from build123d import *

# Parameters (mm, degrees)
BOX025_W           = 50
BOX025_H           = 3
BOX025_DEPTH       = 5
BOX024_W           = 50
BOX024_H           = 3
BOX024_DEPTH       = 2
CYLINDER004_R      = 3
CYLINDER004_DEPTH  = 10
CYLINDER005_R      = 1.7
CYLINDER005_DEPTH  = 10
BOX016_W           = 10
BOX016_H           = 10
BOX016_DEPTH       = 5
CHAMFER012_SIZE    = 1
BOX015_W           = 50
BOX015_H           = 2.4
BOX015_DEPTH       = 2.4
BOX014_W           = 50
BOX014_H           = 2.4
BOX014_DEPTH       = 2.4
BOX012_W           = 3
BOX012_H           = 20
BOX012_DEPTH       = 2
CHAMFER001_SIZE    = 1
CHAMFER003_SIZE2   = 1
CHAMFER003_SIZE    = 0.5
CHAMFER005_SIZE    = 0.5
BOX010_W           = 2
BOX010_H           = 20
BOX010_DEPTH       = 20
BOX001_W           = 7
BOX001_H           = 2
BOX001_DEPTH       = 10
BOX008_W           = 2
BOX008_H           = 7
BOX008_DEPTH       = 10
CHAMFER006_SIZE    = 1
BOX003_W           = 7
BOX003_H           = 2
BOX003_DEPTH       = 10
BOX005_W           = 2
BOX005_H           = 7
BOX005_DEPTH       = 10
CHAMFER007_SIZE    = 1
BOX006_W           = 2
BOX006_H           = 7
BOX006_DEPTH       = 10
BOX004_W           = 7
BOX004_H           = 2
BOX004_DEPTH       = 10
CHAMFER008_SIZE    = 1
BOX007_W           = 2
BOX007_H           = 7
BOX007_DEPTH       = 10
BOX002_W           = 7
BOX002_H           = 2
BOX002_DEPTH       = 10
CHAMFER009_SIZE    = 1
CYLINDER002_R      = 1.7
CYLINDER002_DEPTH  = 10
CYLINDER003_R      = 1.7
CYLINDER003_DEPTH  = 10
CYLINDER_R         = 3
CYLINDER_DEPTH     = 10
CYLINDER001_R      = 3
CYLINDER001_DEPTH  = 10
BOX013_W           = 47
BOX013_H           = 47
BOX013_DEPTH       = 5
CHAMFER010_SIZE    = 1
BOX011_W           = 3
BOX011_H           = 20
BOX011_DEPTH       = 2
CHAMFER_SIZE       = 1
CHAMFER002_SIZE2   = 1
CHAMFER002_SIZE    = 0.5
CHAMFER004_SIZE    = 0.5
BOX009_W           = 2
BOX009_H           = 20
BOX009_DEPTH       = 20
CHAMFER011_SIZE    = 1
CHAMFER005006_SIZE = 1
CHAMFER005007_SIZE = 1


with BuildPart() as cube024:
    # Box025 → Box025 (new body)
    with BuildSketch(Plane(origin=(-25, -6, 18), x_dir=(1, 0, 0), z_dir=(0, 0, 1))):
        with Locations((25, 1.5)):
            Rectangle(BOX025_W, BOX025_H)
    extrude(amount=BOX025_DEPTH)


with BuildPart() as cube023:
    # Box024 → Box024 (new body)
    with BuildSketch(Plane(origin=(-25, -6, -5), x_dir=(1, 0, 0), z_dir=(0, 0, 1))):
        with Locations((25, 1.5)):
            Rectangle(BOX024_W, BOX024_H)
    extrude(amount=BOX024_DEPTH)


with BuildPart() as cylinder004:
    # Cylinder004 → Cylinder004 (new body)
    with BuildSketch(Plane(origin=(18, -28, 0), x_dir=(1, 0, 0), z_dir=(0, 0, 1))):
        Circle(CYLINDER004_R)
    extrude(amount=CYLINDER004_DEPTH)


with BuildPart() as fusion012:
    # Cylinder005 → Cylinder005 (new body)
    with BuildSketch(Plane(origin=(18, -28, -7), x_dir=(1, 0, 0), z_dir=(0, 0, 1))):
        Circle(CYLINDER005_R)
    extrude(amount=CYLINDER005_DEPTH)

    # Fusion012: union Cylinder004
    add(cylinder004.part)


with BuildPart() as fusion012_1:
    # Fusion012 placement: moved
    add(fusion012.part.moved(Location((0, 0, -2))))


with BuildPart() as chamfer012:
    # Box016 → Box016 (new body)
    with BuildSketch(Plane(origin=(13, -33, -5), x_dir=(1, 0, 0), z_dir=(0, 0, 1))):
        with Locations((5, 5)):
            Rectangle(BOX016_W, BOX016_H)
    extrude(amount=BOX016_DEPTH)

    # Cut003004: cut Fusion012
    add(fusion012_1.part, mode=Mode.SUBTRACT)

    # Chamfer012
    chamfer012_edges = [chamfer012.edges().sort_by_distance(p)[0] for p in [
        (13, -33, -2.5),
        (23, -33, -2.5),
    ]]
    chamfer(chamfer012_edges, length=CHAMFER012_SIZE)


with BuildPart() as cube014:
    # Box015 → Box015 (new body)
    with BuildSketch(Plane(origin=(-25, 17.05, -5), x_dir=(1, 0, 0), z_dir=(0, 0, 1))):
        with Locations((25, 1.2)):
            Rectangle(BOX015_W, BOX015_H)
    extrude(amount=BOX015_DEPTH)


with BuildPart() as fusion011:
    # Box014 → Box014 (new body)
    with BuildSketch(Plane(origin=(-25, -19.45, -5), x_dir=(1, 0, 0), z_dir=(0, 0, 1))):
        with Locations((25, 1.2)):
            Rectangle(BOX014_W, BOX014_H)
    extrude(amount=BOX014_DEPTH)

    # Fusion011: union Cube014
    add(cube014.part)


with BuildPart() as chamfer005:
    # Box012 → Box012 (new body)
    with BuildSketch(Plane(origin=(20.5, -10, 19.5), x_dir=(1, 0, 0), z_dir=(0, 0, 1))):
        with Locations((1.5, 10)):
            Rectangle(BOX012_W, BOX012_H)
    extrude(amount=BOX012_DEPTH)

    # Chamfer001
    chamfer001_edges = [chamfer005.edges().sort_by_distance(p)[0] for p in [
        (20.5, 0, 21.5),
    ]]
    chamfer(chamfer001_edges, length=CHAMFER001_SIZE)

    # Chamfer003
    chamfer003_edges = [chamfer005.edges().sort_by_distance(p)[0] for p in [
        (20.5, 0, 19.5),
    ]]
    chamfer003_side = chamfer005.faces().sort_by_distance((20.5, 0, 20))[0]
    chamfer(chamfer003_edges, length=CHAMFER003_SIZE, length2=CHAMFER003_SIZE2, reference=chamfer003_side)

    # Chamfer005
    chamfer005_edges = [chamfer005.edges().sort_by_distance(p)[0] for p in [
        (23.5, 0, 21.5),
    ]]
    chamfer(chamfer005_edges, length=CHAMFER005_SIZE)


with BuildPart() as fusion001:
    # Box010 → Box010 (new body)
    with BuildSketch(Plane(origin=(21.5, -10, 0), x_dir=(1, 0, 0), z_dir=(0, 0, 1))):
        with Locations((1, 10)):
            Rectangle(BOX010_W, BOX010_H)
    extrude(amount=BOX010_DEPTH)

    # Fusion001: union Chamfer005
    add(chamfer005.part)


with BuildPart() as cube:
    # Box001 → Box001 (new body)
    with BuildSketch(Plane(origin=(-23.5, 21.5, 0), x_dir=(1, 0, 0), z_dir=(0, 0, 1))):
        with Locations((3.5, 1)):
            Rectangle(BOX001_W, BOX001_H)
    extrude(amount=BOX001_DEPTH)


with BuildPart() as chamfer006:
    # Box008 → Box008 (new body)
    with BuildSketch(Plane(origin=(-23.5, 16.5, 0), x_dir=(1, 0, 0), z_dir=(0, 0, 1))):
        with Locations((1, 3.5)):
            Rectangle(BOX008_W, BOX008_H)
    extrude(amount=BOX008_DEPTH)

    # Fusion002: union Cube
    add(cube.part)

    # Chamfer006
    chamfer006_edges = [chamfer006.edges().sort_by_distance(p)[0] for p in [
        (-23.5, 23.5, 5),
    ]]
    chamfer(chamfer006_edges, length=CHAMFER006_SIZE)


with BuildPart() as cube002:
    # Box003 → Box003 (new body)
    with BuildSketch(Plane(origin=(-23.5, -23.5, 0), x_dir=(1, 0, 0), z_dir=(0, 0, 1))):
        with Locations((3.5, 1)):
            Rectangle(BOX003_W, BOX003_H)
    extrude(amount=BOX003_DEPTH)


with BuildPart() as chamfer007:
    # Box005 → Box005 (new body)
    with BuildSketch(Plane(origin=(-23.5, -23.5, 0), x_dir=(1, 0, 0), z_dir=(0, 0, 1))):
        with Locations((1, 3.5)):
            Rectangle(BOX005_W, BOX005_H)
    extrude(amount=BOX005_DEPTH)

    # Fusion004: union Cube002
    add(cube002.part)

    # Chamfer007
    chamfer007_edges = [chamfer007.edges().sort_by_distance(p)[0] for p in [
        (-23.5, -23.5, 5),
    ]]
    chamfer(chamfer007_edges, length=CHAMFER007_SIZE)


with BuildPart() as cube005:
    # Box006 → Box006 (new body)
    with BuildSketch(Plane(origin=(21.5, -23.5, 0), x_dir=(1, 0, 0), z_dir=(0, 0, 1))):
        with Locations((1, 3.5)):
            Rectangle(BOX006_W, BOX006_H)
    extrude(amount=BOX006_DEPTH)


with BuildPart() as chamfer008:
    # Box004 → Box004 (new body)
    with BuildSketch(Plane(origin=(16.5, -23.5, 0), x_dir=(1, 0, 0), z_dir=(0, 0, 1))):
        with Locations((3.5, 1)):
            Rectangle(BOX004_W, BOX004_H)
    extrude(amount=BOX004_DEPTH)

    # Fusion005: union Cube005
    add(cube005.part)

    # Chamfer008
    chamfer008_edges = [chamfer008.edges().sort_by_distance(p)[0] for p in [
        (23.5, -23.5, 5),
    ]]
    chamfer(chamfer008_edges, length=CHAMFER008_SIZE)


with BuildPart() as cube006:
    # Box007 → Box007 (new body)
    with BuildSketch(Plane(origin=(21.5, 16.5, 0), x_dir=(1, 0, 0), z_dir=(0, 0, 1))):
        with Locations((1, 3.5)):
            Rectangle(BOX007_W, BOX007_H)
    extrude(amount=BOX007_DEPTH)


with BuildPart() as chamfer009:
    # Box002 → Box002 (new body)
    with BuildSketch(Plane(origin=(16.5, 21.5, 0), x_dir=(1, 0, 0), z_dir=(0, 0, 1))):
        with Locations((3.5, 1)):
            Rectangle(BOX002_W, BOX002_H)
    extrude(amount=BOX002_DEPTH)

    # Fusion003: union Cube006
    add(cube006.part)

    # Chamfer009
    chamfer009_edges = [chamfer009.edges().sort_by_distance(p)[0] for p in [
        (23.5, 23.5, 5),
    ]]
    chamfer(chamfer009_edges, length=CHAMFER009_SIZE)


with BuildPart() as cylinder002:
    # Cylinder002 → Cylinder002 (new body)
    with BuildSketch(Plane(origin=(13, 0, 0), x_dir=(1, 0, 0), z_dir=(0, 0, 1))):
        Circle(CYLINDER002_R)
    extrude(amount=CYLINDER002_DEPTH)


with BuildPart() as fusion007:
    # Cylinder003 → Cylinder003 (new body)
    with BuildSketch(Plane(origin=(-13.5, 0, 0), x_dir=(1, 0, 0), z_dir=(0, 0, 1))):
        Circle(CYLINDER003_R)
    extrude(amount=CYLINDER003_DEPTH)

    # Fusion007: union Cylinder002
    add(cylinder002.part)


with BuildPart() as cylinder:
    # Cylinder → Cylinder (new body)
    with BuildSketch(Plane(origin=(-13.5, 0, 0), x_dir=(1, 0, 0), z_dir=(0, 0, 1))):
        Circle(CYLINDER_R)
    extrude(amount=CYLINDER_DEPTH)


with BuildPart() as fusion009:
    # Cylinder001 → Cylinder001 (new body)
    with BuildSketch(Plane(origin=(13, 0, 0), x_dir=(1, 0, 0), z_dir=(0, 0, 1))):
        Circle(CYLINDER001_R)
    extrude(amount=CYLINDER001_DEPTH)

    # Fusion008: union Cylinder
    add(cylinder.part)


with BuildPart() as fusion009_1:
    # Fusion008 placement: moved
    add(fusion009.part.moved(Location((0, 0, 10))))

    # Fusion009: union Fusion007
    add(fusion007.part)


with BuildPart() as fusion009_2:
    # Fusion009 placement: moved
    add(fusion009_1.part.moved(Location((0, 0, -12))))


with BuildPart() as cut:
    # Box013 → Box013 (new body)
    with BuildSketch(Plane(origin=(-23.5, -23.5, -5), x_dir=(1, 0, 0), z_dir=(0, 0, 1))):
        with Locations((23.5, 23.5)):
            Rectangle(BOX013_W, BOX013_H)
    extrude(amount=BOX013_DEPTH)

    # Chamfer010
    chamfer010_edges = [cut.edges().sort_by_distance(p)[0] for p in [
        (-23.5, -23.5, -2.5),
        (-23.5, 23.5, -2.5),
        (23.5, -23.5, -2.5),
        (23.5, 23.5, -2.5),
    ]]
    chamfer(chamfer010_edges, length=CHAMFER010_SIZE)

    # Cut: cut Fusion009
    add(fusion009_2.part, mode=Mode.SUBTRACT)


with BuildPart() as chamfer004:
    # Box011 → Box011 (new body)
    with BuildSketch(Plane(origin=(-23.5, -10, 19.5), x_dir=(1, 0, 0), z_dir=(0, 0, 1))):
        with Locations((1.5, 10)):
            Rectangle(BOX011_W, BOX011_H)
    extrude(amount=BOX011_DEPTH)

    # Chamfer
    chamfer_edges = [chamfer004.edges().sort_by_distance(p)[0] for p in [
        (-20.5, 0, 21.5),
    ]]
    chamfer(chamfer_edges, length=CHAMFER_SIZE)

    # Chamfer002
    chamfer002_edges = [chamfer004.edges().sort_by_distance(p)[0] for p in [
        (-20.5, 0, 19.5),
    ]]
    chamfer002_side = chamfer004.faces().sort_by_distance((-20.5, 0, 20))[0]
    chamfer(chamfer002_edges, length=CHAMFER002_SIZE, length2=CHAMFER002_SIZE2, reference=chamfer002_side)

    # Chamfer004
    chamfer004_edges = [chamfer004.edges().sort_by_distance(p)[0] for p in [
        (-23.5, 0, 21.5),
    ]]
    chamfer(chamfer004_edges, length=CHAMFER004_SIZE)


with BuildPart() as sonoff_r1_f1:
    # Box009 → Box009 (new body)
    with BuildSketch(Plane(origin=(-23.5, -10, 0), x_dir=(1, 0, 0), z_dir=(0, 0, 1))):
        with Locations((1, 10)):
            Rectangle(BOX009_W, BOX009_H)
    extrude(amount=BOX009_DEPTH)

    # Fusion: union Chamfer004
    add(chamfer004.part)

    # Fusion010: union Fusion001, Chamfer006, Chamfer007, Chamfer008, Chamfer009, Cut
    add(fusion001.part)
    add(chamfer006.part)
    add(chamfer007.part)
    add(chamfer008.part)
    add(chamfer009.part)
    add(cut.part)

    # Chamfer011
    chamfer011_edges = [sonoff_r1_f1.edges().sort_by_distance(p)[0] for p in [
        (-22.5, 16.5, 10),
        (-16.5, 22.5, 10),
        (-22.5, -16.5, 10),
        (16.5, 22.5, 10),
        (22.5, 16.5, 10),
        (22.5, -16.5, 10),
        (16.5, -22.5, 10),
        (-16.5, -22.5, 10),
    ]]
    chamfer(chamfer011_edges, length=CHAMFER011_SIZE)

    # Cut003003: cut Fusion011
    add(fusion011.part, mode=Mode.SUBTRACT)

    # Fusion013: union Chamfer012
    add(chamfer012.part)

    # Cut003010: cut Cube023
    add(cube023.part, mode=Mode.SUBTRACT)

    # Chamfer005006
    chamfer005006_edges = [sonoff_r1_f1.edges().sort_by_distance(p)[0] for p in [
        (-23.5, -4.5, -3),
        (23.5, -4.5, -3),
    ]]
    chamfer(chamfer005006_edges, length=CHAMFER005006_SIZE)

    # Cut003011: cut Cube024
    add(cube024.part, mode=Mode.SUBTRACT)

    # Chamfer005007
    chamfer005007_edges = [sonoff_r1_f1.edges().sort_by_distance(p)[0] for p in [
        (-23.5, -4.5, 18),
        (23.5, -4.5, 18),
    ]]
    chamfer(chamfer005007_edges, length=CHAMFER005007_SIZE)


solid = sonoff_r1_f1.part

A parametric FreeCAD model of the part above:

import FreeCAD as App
import Part
import Sketcher
from FreeCAD import Vector


def edges_at(feature, points):
    """Names of the edges that pass closest to the given points."""
    edges = feature.Shape.Edges
    near = lambda p: min(range(len(edges)), key=lambda i: edges[i].distToShape(Part.Vertex(*p))[0])
    return sorted({f"Edge{near(p) + 1}" for p in points})

doc = App.newDocument("Part")
body = doc.addObject("PartDesign::Body", "Body")

# Sketch on XY plane
sketch1 = body.newObject("Sketcher::SketchObject", "Sketch")
sketch1.AttachmentSupport = (doc.getObject("XY_Plane"), [""])
sketch1.MapMode = "FlatFace"
sketch1.AttachmentOffset = App.Placement(Vector(0, 0, 18), App.Rotation())
sketch1.addGeometry(Part.LineSegment(Vector(-25, -3, 0), Vector(-25, -6, 0)), False)
sketch1.addGeometry(Part.LineSegment(Vector(-25, -6, 0), Vector(25, -6, 0)), False)
sketch1.addGeometry(Part.LineSegment(Vector(25, -6, 0), Vector(25, -3, 0)), False)
sketch1.addGeometry(Part.LineSegment(Vector(25, -3, 0), Vector(-25, -3, 0)), False)
sketch1.addConstraint(Sketcher.Constraint("Coincident", 0, 2, 1, 1))
sketch1.addConstraint(Sketcher.Constraint("Coincident", 1, 2, 2, 1))
sketch1.addConstraint(Sketcher.Constraint("Coincident", 2, 2, 3, 1))
sketch1.addConstraint(Sketcher.Constraint("Coincident", 3, 2, 0, 1))
sketch1.addConstraint(Sketcher.Constraint("Vertical", 0))
sketch1.addConstraint(Sketcher.Constraint("Horizontal", 1))
sketch1.addConstraint(Sketcher.Constraint("Vertical", 2))
sketch1.addConstraint(Sketcher.Constraint("Horizontal", 3))
sketch1.addConstraint(Sketcher.Constraint("DistanceX", 1, 1, 1, 2, 50.0))
sketch1.addConstraint(Sketcher.Constraint("DistanceY", 0, 2, 0, 1, 3.0))
sketch1.addConstraint(Sketcher.Constraint("DistanceX", 0, 2, -1, 1, 25.0))
sketch1.addConstraint(Sketcher.Constraint("DistanceY", 0, 2, -1, 1, 6.0))
pad1 = body.newObject("PartDesign::Pad", "Pad")
pad1.Profile = sketch1
pad1.Length = 5
body2 = doc.addObject("PartDesign::Body", "Body001")

# Sketch on XY plane
sketch2 = body2.newObject("Sketcher::SketchObject", "Sketch001")
sketch2.AttachmentSupport = (doc.getObject("XY_Plane001"), [""])
sketch2.MapMode = "FlatFace"
sketch2.AttachmentOffset = App.Placement(Vector(0, 0, -5), App.Rotation())
sketch2.addGeometry(Part.LineSegment(Vector(-25, -3, 0), Vector(-25, -6, 0)), False)
sketch2.addGeometry(Part.LineSegment(Vector(-25, -6, 0), Vector(25, -6, 0)), False)
sketch2.addGeometry(Part.LineSegment(Vector(25, -6, 0), Vector(25, -3, 0)), False)
sketch2.addGeometry(Part.LineSegment(Vector(25, -3, 0), Vector(-25, -3, 0)), False)
sketch2.addConstraint(Sketcher.Constraint("Coincident", 0, 2, 1, 1))
sketch2.addConstraint(Sketcher.Constraint("Coincident", 1, 2, 2, 1))
sketch2.addConstraint(Sketcher.Constraint("Coincident", 2, 2, 3, 1))
sketch2.addConstraint(Sketcher.Constraint("Coincident", 3, 2, 0, 1))
sketch2.addConstraint(Sketcher.Constraint("Vertical", 0))
sketch2.addConstraint(Sketcher.Constraint("Horizontal", 1))
sketch2.addConstraint(Sketcher.Constraint("Vertical", 2))
sketch2.addConstraint(Sketcher.Constraint("Horizontal", 3))
sketch2.addConstraint(Sketcher.Constraint("DistanceX", 1, 1, 1, 2, 50.0))
sketch2.addConstraint(Sketcher.Constraint("DistanceY", 0, 2, 0, 1, 3.0))
sketch2.addConstraint(Sketcher.Constraint("DistanceX", 0, 2, -1, 1, 25.0))
sketch2.addConstraint(Sketcher.Constraint("DistanceY", 0, 2, -1, 1, 6.0))
pad2 = body2.newObject("PartDesign::Pad", "Pad001")
pad2.Profile = sketch2
pad2.Length = 2
body3 = doc.addObject("PartDesign::Body", "Body002")

# Sketch on XY plane
sketch3 = body3.newObject("Sketcher::SketchObject", "Sketch002")
sketch3.AttachmentSupport = (doc.getObject("XY_Plane002"), [""])
sketch3.MapMode = "FlatFace"
sketch3.addGeometry(Part.Circle(Vector(18, -28, 0), Vector(0, 0, 1), 3), False)
sketch3.addConstraint(Sketcher.Constraint("Diameter", 0, 6.0))
sketch3.addConstraint(Sketcher.Constraint("DistanceX", -1, 1, 0, 3, 18.0))
sketch3.addConstraint(Sketcher.Constraint("DistanceY", 0, 3, -1, 1, 28.0))
pad3 = body3.newObject("PartDesign::Pad", "Pad002")
pad3.Profile = sketch3
pad3.Length = 10
body4 = doc.addObject("PartDesign::Body", "Body003")

# Sketch on XY plane
sketch4 = body4.newObject("Sketcher::SketchObject", "Sketch003")
sketch4.AttachmentSupport = (doc.getObject("XY_Plane003"), [""])
sketch4.MapMode = "FlatFace"
sketch4.AttachmentOffset = App.Placement(Vector(0, 0, -7), App.Rotation())
sketch4.addGeometry(Part.Circle(Vector(18, -28, 0), Vector(0, 0, 1), 1.7), False)
sketch4.addConstraint(Sketcher.Constraint("Diameter", 0, 3.4))
sketch4.addConstraint(Sketcher.Constraint("DistanceX", -1, 1, 0, 3, 18.0))
sketch4.addConstraint(Sketcher.Constraint("DistanceY", 0, 3, -1, 1, 28.0))
pad4 = body4.newObject("PartDesign::Pad", "Pad003")
pad4.Profile = sketch4
pad4.Length = 10
doc.recompute()

boolean = body4.newObject("PartDesign::Boolean", "Boolean")
boolean.Type = "Fuse"
boolean.addObjects([body3])
body5 = doc.addObject("PartDesign::Body", "Body004")
doc.recompute()

body4.Placement = App.Placement(Vector(0, 0, -2), App.Rotation(Vector(0, 0, 1), 0))
boolean2 = body5.newObject("PartDesign::Boolean", "Boolean001")
boolean2.Type = "Fuse"
boolean2.addObjects([body4])
body6 = doc.addObject("PartDesign::Body", "Body005")

# Sketch on XY plane
sketch5 = body6.newObject("Sketcher::SketchObject", "Sketch004")
sketch5.AttachmentSupport = (doc.getObject("XY_Plane005"), [""])
sketch5.MapMode = "FlatFace"
sketch5.AttachmentOffset = App.Placement(Vector(0, 0, -5), App.Rotation())
sketch5.addGeometry(Part.LineSegment(Vector(13, -23, 0), Vector(13, -33, 0)), False)
sketch5.addGeometry(Part.LineSegment(Vector(13, -33, 0), Vector(23, -33, 0)), False)
sketch5.addGeometry(Part.LineSegment(Vector(23, -33, 0), Vector(23, -23, 0)), False)
sketch5.addGeometry(Part.LineSegment(Vector(23, -23, 0), Vector(13, -23, 0)), False)
sketch5.addConstraint(Sketcher.Constraint("Coincident", 0, 2, 1, 1))
sketch5.addConstraint(Sketcher.Constraint("Coincident", 1, 2, 2, 1))
sketch5.addConstraint(Sketcher.Constraint("Coincident", 2, 2, 3, 1))
sketch5.addConstraint(Sketcher.Constraint("Coincident", 3, 2, 0, 1))
sketch5.addConstraint(Sketcher.Constraint("Vertical", 0))
sketch5.addConstraint(Sketcher.Constraint("Horizontal", 1))
sketch5.addConstraint(Sketcher.Constraint("Vertical", 2))
sketch5.addConstraint(Sketcher.Constraint("Horizontal", 3))
sketch5.addConstraint(Sketcher.Constraint("Equal", 3, 0))
sketch5.addConstraint(Sketcher.Constraint("DistanceX", 1, 1, 1, 2, 10.0))
sketch5.addConstraint(Sketcher.Constraint("DistanceX", -1, 1, 0, 2, 13.0))
sketch5.addConstraint(Sketcher.Constraint("DistanceY", 0, 2, -1, 1, 33.0))
pad5 = body6.newObject("PartDesign::Pad", "Pad004")
pad5.Profile = sketch5
pad5.Length = 5
doc.recompute()

boolean3 = body6.newObject("PartDesign::Boolean", "Boolean002")
boolean3.Type = "Cut"
boolean3.addObjects([body5])
doc.recompute()

chamfer = body6.newObject("PartDesign::Chamfer", "Chamfer")
chamfer.Base = (boolean3, edges_at(boolean3, [(13, -33, -2.5), (23, -33, -2.5)]))
chamfer.Size = 1
body7 = doc.addObject("PartDesign::Body", "Body006")

# Sketch on XY plane
sketch6 = body7.newObject("Sketcher::SketchObject", "Sketch005")
sketch6.AttachmentSupport = (doc.getObject("XY_Plane006"), [""])
sketch6.MapMode = "FlatFace"
sketch6.AttachmentOffset = App.Placement(Vector(0, 0, -5), App.Rotation())
sketch6.addGeometry(Part.LineSegment(Vector(-25, 19.4, 0), Vector(-25, 17.1, 0)), False)
sketch6.addGeometry(Part.LineSegment(Vector(-25, 17.1, 0), Vector(25, 17.1, 0)), False)
sketch6.addGeometry(Part.LineSegment(Vector(25, 17.1, 0), Vector(25, 19.4, 0)), False)
sketch6.addGeometry(Part.LineSegment(Vector(25, 19.4, 0), Vector(-25, 19.4, 0)), False)
sketch6.addConstraint(Sketcher.Constraint("Coincident", 0, 2, 1, 1))
sketch6.addConstraint(Sketcher.Constraint("Coincident", 1, 2, 2, 1))
sketch6.addConstraint(Sketcher.Constraint("Coincident", 2, 2, 3, 1))
sketch6.addConstraint(Sketcher.Constraint("Coincident", 3, 2, 0, 1))
sketch6.addConstraint(Sketcher.Constraint("Vertical", 0))
sketch6.addConstraint(Sketcher.Constraint("Horizontal", 1))
sketch6.addConstraint(Sketcher.Constraint("Vertical", 2))
sketch6.addConstraint(Sketcher.Constraint("Horizontal", 3))
sketch6.addConstraint(Sketcher.Constraint("DistanceX", 1, 1, 1, 2, 50.0))
sketch6.addConstraint(Sketcher.Constraint("DistanceY", 0, 2, 0, 1, 2.4))
sketch6.addConstraint(Sketcher.Constraint("DistanceX", 0, 2, -1, 1, 25.0))
sketch6.addConstraint(Sketcher.Constraint("DistanceY", -1, 1, 0, 2, 17.05))
pad6 = body7.newObject("PartDesign::Pad", "Pad005")
pad6.Profile = sketch6
pad6.Length = 2.4
body8 = doc.addObject("PartDesign::Body", "Body007")
body8.AllowCompound = True

# Sketch on XY plane
sketch7 = body8.newObject("Sketcher::SketchObject", "Sketch006")
sketch7.AttachmentSupport = (doc.getObject("XY_Plane007"), [""])
sketch7.MapMode = "FlatFace"
sketch7.AttachmentOffset = App.Placement(Vector(0, 0, -5), App.Rotation())
sketch7.addGeometry(Part.LineSegment(Vector(-25, -17.1, 0), Vector(-25, -19.4, 0)), False)
sketch7.addGeometry(Part.LineSegment(Vector(-25, -19.4, 0), Vector(25, -19.4, 0)), False)
sketch7.addGeometry(Part.LineSegment(Vector(25, -19.4, 0), Vector(25, -17.1, 0)), False)
sketch7.addGeometry(Part.LineSegment(Vector(25, -17.1, 0), Vector(-25, -17.1, 0)), False)
sketch7.addConstraint(Sketcher.Constraint("Coincident", 0, 2, 1, 1))
sketch7.addConstraint(Sketcher.Constraint("Coincident", 1, 2, 2, 1))
sketch7.addConstraint(Sketcher.Constraint("Coincident", 2, 2, 3, 1))
sketch7.addConstraint(Sketcher.Constraint("Coincident", 3, 2, 0, 1))
sketch7.addConstraint(Sketcher.Constraint("Vertical", 0))
sketch7.addConstraint(Sketcher.Constraint("Horizontal", 1))
sketch7.addConstraint(Sketcher.Constraint("Vertical", 2))
sketch7.addConstraint(Sketcher.Constraint("Horizontal", 3))
sketch7.addConstraint(Sketcher.Constraint("DistanceX", 1, 1, 1, 2, 50.0))
sketch7.addConstraint(Sketcher.Constraint("DistanceY", 0, 2, 0, 1, 2.4))
sketch7.addConstraint(Sketcher.Constraint("DistanceX", 0, 2, -1, 1, 25.0))
sketch7.addConstraint(Sketcher.Constraint("DistanceY", 0, 2, -1, 1, 19.45))
pad7 = body8.newObject("PartDesign::Pad", "Pad006")
pad7.Profile = sketch7
pad7.Length = 2.4
doc.recompute()

boolean4 = body8.newObject("PartDesign::Boolean", "Boolean003")
boolean4.Type = "Fuse"
boolean4.addObjects([body7])
body9 = doc.addObject("PartDesign::Body", "Body008")

# Sketch on XY plane
sketch8 = body9.newObject("Sketcher::SketchObject", "Sketch007")
sketch8.AttachmentSupport = (doc.getObject("XY_Plane008"), [""])
sketch8.MapMode = "FlatFace"
sketch8.AttachmentOffset = App.Placement(Vector(0, 0, 19.5), App.Rotation())
sketch8.addGeometry(Part.LineSegment(Vector(20.5, 10, 0), Vector(20.5, -10, 0)), False)
sketch8.addGeometry(Part.LineSegment(Vector(20.5, -10, 0), Vector(23.5, -10, 0)), False)
sketch8.addGeometry(Part.LineSegment(Vector(23.5, -10, 0), Vector(23.5, 10, 0)), False)
sketch8.addGeometry(Part.LineSegment(Vector(23.5, 10, 0), Vector(20.5, 10, 0)), False)
sketch8.addConstraint(Sketcher.Constraint("Coincident", 0, 2, 1, 1))
sketch8.addConstraint(Sketcher.Constraint("Coincident", 1, 2, 2, 1))
sketch8.addConstraint(Sketcher.Constraint("Coincident", 2, 2, 3, 1))
sketch8.addConstraint(Sketcher.Constraint("Coincident", 3, 2, 0, 1))
sketch8.addConstraint(Sketcher.Constraint("Vertical", 0))
sketch8.addConstraint(Sketcher.Constraint("Horizontal", 1))
sketch8.addConstraint(Sketcher.Constraint("Vertical", 2))
sketch8.addConstraint(Sketcher.Constraint("Horizontal", 3))
sketch8.addConstraint(Sketcher.Constraint("DistanceX", 1, 1, 1, 2, 3.0))
sketch8.addConstraint(Sketcher.Constraint("DistanceY", 0, 2, 0, 1, 20.0))
sketch8.addConstraint(Sketcher.Constraint("DistanceY", 0, 2, -1, 1, 10.0))
sketch8.addConstraint(Sketcher.Constraint("DistanceX", -1, 1, 0, 2, 20.5))
pad8 = body9.newObject("PartDesign::Pad", "Pad007")
pad8.Profile = sketch8
pad8.Length = 2
doc.recompute()

chamfer2 = body9.newObject("PartDesign::Chamfer", "Chamfer001")
chamfer2.Base = (pad8, edges_at(pad8, [(20.5, 0, 21.5)]))
chamfer2.Size = 1
doc.recompute()

chamfer3 = body9.newObject("PartDesign::Chamfer", "Chamfer002")
chamfer3.Base = (chamfer2, edges_at(chamfer2, [(20.5, 0, 19.5)]))
chamfer3.ChamferType = "Two distances"
chamfer3.Size = 0.5
chamfer3.Size2 = 1
doc.recompute()

chamfer4 = body9.newObject("PartDesign::Chamfer", "Chamfer003")
chamfer4.Base = (chamfer3, edges_at(chamfer3, [(23.5, 0, 21.5)]))
chamfer4.Size = 0.5
body10 = doc.addObject("PartDesign::Body", "Body009")

# Sketch on XY plane
sketch9 = body10.newObject("Sketcher::SketchObject", "Sketch008")
sketch9.AttachmentSupport = (doc.getObject("XY_Plane009"), [""])
sketch9.MapMode = "FlatFace"
sketch9.addGeometry(Part.LineSegment(Vector(21.5, 10, 0), Vector(21.5, -10, 0)), False)
sketch9.addGeometry(Part.LineSegment(Vector(21.5, -10, 0), Vector(23.5, -10, 0)), False)
sketch9.addGeometry(Part.LineSegment(Vector(23.5, -10, 0), Vector(23.5, 10, 0)), False)
sketch9.addGeometry(Part.LineSegment(Vector(23.5, 10, 0), Vector(21.5, 10, 0)), False)
sketch9.addConstraint(Sketcher.Constraint("Coincident", 0, 2, 1, 1))
sketch9.addConstraint(Sketcher.Constraint("Coincident", 1, 2, 2, 1))
sketch9.addConstraint(Sketcher.Constraint("Coincident", 2, 2, 3, 1))
sketch9.addConstraint(Sketcher.Constraint("Coincident", 3, 2, 0, 1))
sketch9.addConstraint(Sketcher.Constraint("Vertical", 0))
sketch9.addConstraint(Sketcher.Constraint("Horizontal", 1))
sketch9.addConstraint(Sketcher.Constraint("Vertical", 2))
sketch9.addConstraint(Sketcher.Constraint("Horizontal", 3))
sketch9.addConstraint(Sketcher.Constraint("DistanceX", 1, 1, 1, 2, 2.0))
sketch9.addConstraint(Sketcher.Constraint("DistanceY", 0, 2, 0, 1, 20.0))
sketch9.addConstraint(Sketcher.Constraint("DistanceY", 0, 2, -1, 1, 10.0))
sketch9.addConstraint(Sketcher.Constraint("DistanceX", -1, 1, 0, 2, 21.5))
pad9 = body10.newObject("PartDesign::Pad", "Pad008")
pad9.Profile = sketch9
pad9.Length = 20
doc.recompute()

boolean5 = body10.newObject("PartDesign::Boolean", "Boolean004")
boolean5.Type = "Fuse"
boolean5.addObjects([body9])
body11 = doc.addObject("PartDesign::Body", "Body010")

# Sketch on XY plane
sketch10 = body11.newObject("Sketcher::SketchObject", "Sketch009")
sketch10.AttachmentSupport = (doc.getObject("XY_Plane010"), [""])
sketch10.MapMode = "FlatFace"
sketch10.addGeometry(Part.LineSegment(Vector(-23.5, 23.5, 0), Vector(-23.5, 21.5, 0)), False)
sketch10.addGeometry(Part.LineSegment(Vector(-23.5, 21.5, 0), Vector(-16.5, 21.5, 0)), False)
sketch10.addGeometry(Part.LineSegment(Vector(-16.5, 21.5, 0), Vector(-16.5, 23.5, 0)), False)
sketch10.addGeometry(Part.LineSegment(Vector(-16.5, 23.5, 0), Vector(-23.5, 23.5, 0)), False)
sketch10.addConstraint(Sketcher.Constraint("Coincident", 0, 2, 1, 1))
sketch10.addConstraint(Sketcher.Constraint("Coincident", 1, 2, 2, 1))
sketch10.addConstraint(Sketcher.Constraint("Coincident", 2, 2, 3, 1))
sketch10.addConstraint(Sketcher.Constraint("Coincident", 3, 2, 0, 1))
sketch10.addConstraint(Sketcher.Constraint("Vertical", 0))
sketch10.addConstraint(Sketcher.Constraint("Horizontal", 1))
sketch10.addConstraint(Sketcher.Constraint("Vertical", 2))
sketch10.addConstraint(Sketcher.Constraint("Horizontal", 3))
sketch10.addConstraint(Sketcher.Constraint("DistanceX", 1, 1, 1, 2, 7.0))
sketch10.addConstraint(Sketcher.Constraint("DistanceY", 0, 2, 0, 1, 2.0))
sketch10.addConstraint(Sketcher.Constraint("DistanceX", 0, 2, -1, 1, 23.5))
sketch10.addConstraint(Sketcher.Constraint("DistanceY", -1, 1, 0, 2, 21.5))
pad10 = body11.newObject("PartDesign::Pad", "Pad009")
pad10.Profile = sketch10
pad10.Length = 10
body12 = doc.addObject("PartDesign::Body", "Body011")

# Sketch on XY plane
sketch11 = body12.newObject("Sketcher::SketchObject", "Sketch010")
sketch11.AttachmentSupport = (doc.getObject("XY_Plane011"), [""])
sketch11.MapMode = "FlatFace"
sketch11.addGeometry(Part.LineSegment(Vector(-23.5, 23.5, 0), Vector(-23.5, 16.5, 0)), False)
sketch11.addGeometry(Part.LineSegment(Vector(-23.5, 16.5, 0), Vector(-21.5, 16.5, 0)), False)
sketch11.addGeometry(Part.LineSegment(Vector(-21.5, 16.5, 0), Vector(-21.5, 23.5, 0)), False)
sketch11.addGeometry(Part.LineSegment(Vector(-21.5, 23.5, 0), Vector(-23.5, 23.5, 0)), False)
sketch11.addConstraint(Sketcher.Constraint("Coincident", 0, 2, 1, 1))
sketch11.addConstraint(Sketcher.Constraint("Coincident", 1, 2, 2, 1))
sketch11.addConstraint(Sketcher.Constraint("Coincident", 2, 2, 3, 1))
sketch11.addConstraint(Sketcher.Constraint("Coincident", 3, 2, 0, 1))
sketch11.addConstraint(Sketcher.Constraint("Vertical", 0))
sketch11.addConstraint(Sketcher.Constraint("Horizontal", 1))
sketch11.addConstraint(Sketcher.Constraint("Vertical", 2))
sketch11.addConstraint(Sketcher.Constraint("Horizontal", 3))
sketch11.addConstraint(Sketcher.Constraint("DistanceX", 1, 1, 1, 2, 2.0))
sketch11.addConstraint(Sketcher.Constraint("DistanceY", 0, 2, 0, 1, 7.0))
sketch11.addConstraint(Sketcher.Constraint("DistanceX", 0, 2, -1, 1, 23.5))
sketch11.addConstraint(Sketcher.Constraint("DistanceY", -1, 1, 0, 2, 16.5))
pad11 = body12.newObject("PartDesign::Pad", "Pad010")
pad11.Profile = sketch11
pad11.Length = 10
doc.recompute()

boolean6 = body12.newObject("PartDesign::Boolean", "Boolean005")
boolean6.Type = "Fuse"
boolean6.addObjects([body11])
doc.recompute()

chamfer5 = body12.newObject("PartDesign::Chamfer", "Chamfer004")
chamfer5.Base = (boolean6, edges_at(boolean6, [(-23.5, 23.5, 5)]))
chamfer5.Size = 1
body13 = doc.addObject("PartDesign::Body", "Body012")

# Sketch on XY plane
sketch12 = body13.newObject("Sketcher::SketchObject", "Sketch011")
sketch12.AttachmentSupport = (doc.getObject("XY_Plane012"), [""])
sketch12.MapMode = "FlatFace"
sketch12.addGeometry(Part.LineSegment(Vector(-23.5, -21.5, 0), Vector(-23.5, -23.5, 0)), False)
sketch12.addGeometry(Part.LineSegment(Vector(-23.5, -23.5, 0), Vector(-16.5, -23.5, 0)), False)
sketch12.addGeometry(Part.LineSegment(Vector(-16.5, -23.5, 0), Vector(-16.5, -21.5, 0)), False)
sketch12.addGeometry(Part.LineSegment(Vector(-16.5, -21.5, 0), Vector(-23.5, -21.5, 0)), False)
sketch12.addConstraint(Sketcher.Constraint("Coincident", 0, 2, 1, 1))
sketch12.addConstraint(Sketcher.Constraint("Coincident", 1, 2, 2, 1))
sketch12.addConstraint(Sketcher.Constraint("Coincident", 2, 2, 3, 1))
sketch12.addConstraint(Sketcher.Constraint("Coincident", 3, 2, 0, 1))
sketch12.addConstraint(Sketcher.Constraint("Vertical", 0))
sketch12.addConstraint(Sketcher.Constraint("Horizontal", 1))
sketch12.addConstraint(Sketcher.Constraint("Vertical", 2))
sketch12.addConstraint(Sketcher.Constraint("Horizontal", 3))
sketch12.addConstraint(Sketcher.Constraint("DistanceX", 1, 1, 1, 2, 7.0))
sketch12.addConstraint(Sketcher.Constraint("DistanceY", 0, 2, 0, 1, 2.0))
sketch12.addConstraint(Sketcher.Constraint("DistanceX", 0, 2, -1, 1, 23.5))
sketch12.addConstraint(Sketcher.Constraint("DistanceY", 0, 2, -1, 1, 23.5))
pad12 = body13.newObject("PartDesign::Pad", "Pad011")
pad12.Profile = sketch12
pad12.Length = 10
body14 = doc.addObject("PartDesign::Body", "Body013")

# Sketch on XY plane
sketch13 = body14.newObject("Sketcher::SketchObject", "Sketch012")
sketch13.AttachmentSupport = (doc.getObject("XY_Plane013"), [""])
sketch13.MapMode = "FlatFace"
sketch13.addGeometry(Part.LineSegment(Vector(-23.5, -16.5, 0), Vector(-23.5, -23.5, 0)), False)
sketch13.addGeometry(Part.LineSegment(Vector(-23.5, -23.5, 0), Vector(-21.5, -23.5, 0)), False)
sketch13.addGeometry(Part.LineSegment(Vector(-21.5, -23.5, 0), Vector(-21.5, -16.5, 0)), False)
sketch13.addGeometry(Part.LineSegment(Vector(-21.5, -16.5, 0), Vector(-23.5, -16.5, 0)), False)
sketch13.addConstraint(Sketcher.Constraint("Coincident", 0, 2, 1, 1))
sketch13.addConstraint(Sketcher.Constraint("Coincident", 1, 2, 2, 1))
sketch13.addConstraint(Sketcher.Constraint("Coincident", 2, 2, 3, 1))
sketch13.addConstraint(Sketcher.Constraint("Coincident", 3, 2, 0, 1))
sketch13.addConstraint(Sketcher.Constraint("Vertical", 0))
sketch13.addConstraint(Sketcher.Constraint("Horizontal", 1))
sketch13.addConstraint(Sketcher.Constraint("Vertical", 2))
sketch13.addConstraint(Sketcher.Constraint("Horizontal", 3))
sketch13.addConstraint(Sketcher.Constraint("DistanceX", 1, 1, 1, 2, 2.0))
sketch13.addConstraint(Sketcher.Constraint("DistanceY", 0, 2, 0, 1, 7.0))
sketch13.addConstraint(Sketcher.Constraint("DistanceX", 0, 2, -1, 1, 23.5))
sketch13.addConstraint(Sketcher.Constraint("DistanceY", 0, 2, -1, 1, 23.5))
pad13 = body14.newObject("PartDesign::Pad", "Pad012")
pad13.Profile = sketch13
pad13.Length = 10
doc.recompute()

boolean7 = body14.newObject("PartDesign::Boolean", "Boolean006")
boolean7.Type = "Fuse"
boolean7.addObjects([body13])
doc.recompute()

chamfer6 = body14.newObject("PartDesign::Chamfer", "Chamfer005")
chamfer6.Base = (boolean7, edges_at(boolean7, [(-23.5, -23.5, 5)]))
chamfer6.Size = 1
body15 = doc.addObject("PartDesign::Body", "Body014")

# Sketch on XY plane
sketch14 = body15.newObject("Sketcher::SketchObject", "Sketch013")
sketch14.AttachmentSupport = (doc.getObject("XY_Plane014"), [""])
sketch14.MapMode = "FlatFace"
sketch14.addGeometry(Part.LineSegment(Vector(21.5, -16.5, 0), Vector(21.5, -23.5, 0)), False)
sketch14.addGeometry(Part.LineSegment(Vector(21.5, -23.5, 0), Vector(23.5, -23.5, 0)), False)
sketch14.addGeometry(Part.LineSegment(Vector(23.5, -23.5, 0), Vector(23.5, -16.5, 0)), False)
sketch14.addGeometry(Part.LineSegment(Vector(23.5, -16.5, 0), Vector(21.5, -16.5, 0)), False)
sketch14.addConstraint(Sketcher.Constraint("Coincident", 0, 2, 1, 1))
sketch14.addConstraint(Sketcher.Constraint("Coincident", 1, 2, 2, 1))
sketch14.addConstraint(Sketcher.Constraint("Coincident", 2, 2, 3, 1))
sketch14.addConstraint(Sketcher.Constraint("Coincident", 3, 2, 0, 1))
sketch14.addConstraint(Sketcher.Constraint("Vertical", 0))
sketch14.addConstraint(Sketcher.Constraint("Horizontal", 1))
sketch14.addConstraint(Sketcher.Constraint("Vertical", 2))
sketch14.addConstraint(Sketcher.Constraint("Horizontal", 3))
sketch14.addConstraint(Sketcher.Constraint("DistanceX", 1, 1, 1, 2, 2.0))
sketch14.addConstraint(Sketcher.Constraint("DistanceY", 0, 2, 0, 1, 7.0))
sketch14.addConstraint(Sketcher.Constraint("DistanceX", -1, 1, 0, 2, 21.5))
sketch14.addConstraint(Sketcher.Constraint("DistanceY", 0, 2, -1, 1, 23.5))
pad14 = body15.newObject("PartDesign::Pad", "Pad013")
pad14.Profile = sketch14
pad14.Length = 10
body16 = doc.addObject("PartDesign::Body", "Body015")

# Sketch on XY plane
sketch15 = body16.newObject("Sketcher::SketchObject", "Sketch014")
sketch15.AttachmentSupport = (doc.getObject("XY_Plane015"), [""])
sketch15.MapMode = "FlatFace"
sketch15.addGeometry(Part.LineSegment(Vector(16.5, -21.5, 0), Vector(16.5, -23.5, 0)), False)
sketch15.addGeometry(Part.LineSegment(Vector(16.5, -23.5, 0), Vector(23.5, -23.5, 0)), False)
sketch15.addGeometry(Part.LineSegment(Vector(23.5, -23.5, 0), Vector(23.5, -21.5, 0)), False)
sketch15.addGeometry(Part.LineSegment(Vector(23.5, -21.5, 0), Vector(16.5, -21.5, 0)), False)
sketch15.addConstraint(Sketcher.Constraint("Coincident", 0, 2, 1, 1))
sketch15.addConstraint(Sketcher.Constraint("Coincident", 1, 2, 2, 1))
sketch15.addConstraint(Sketcher.Constraint("Coincident", 2, 2, 3, 1))
sketch15.addConstraint(Sketcher.Constraint("Coincident", 3, 2, 0, 1))
sketch15.addConstraint(Sketcher.Constraint("Vertical", 0))
sketch15.addConstraint(Sketcher.Constraint("Horizontal", 1))
sketch15.addConstraint(Sketcher.Constraint("Vertical", 2))
sketch15.addConstraint(Sketcher.Constraint("Horizontal", 3))
sketch15.addConstraint(Sketcher.Constraint("DistanceX", 1, 1, 1, 2, 7.0))
sketch15.addConstraint(Sketcher.Constraint("DistanceY", 0, 2, 0, 1, 2.0))
sketch15.addConstraint(Sketcher.Constraint("DistanceX", -1, 1, 0, 2, 16.5))
sketch15.addConstraint(Sketcher.Constraint("DistanceY", 0, 2, -1, 1, 23.5))
pad15 = body16.newObject("PartDesign::Pad", "Pad014")
pad15.Profile = sketch15
pad15.Length = 10
doc.recompute()

boolean8 = body16.newObject("PartDesign::Boolean", "Boolean007")
boolean8.Type = "Fuse"
boolean8.addObjects([body15])
doc.recompute()

chamfer7 = body16.newObject("PartDesign::Chamfer", "Chamfer006")
chamfer7.Base = (boolean8, edges_at(boolean8, [(23.5, -23.5, 5)]))
chamfer7.Size = 1
body17 = doc.addObject("PartDesign::Body", "Body016")

# Sketch on XY plane
sketch16 = body17.newObject("Sketcher::SketchObject", "Sketch015")
sketch16.AttachmentSupport = (doc.getObject("XY_Plane016"), [""])
sketch16.MapMode = "FlatFace"
sketch16.addGeometry(Part.LineSegment(Vector(21.5, 23.5, 0), Vector(21.5, 16.5, 0)), False)
sketch16.addGeometry(Part.LineSegment(Vector(21.5, 16.5, 0), Vector(23.5, 16.5, 0)), False)
sketch16.addGeometry(Part.LineSegment(Vector(23.5, 16.5, 0), Vector(23.5, 23.5, 0)), False)
sketch16.addGeometry(Part.LineSegment(Vector(23.5, 23.5, 0), Vector(21.5, 23.5, 0)), False)
sketch16.addConstraint(Sketcher.Constraint("Coincident", 0, 2, 1, 1))
sketch16.addConstraint(Sketcher.Constraint("Coincident", 1, 2, 2, 1))
sketch16.addConstraint(Sketcher.Constraint("Coincident", 2, 2, 3, 1))
sketch16.addConstraint(Sketcher.Constraint("Coincident", 3, 2, 0, 1))
sketch16.addConstraint(Sketcher.Constraint("Vertical", 0))
sketch16.addConstraint(Sketcher.Constraint("Horizontal", 1))
sketch16.addConstraint(Sketcher.Constraint("Vertical", 2))
sketch16.addConstraint(Sketcher.Constraint("Horizontal", 3))
sketch16.addConstraint(Sketcher.Constraint("DistanceX", 1, 1, 1, 2, 2.0))
sketch16.addConstraint(Sketcher.Constraint("DistanceY", 0, 2, 0, 1, 7.0))
sketch16.addConstraint(Sketcher.Constraint("DistanceX", -1, 1, 0, 2, 21.5))
sketch16.addConstraint(Sketcher.Constraint("DistanceY", -1, 1, 0, 2, 16.5))
pad16 = body17.newObject("PartDesign::Pad", "Pad015")
pad16.Profile = sketch16
pad16.Length = 10
body18 = doc.addObject("PartDesign::Body", "Body017")

# Sketch on XY plane
sketch17 = body18.newObject("Sketcher::SketchObject", "Sketch016")
sketch17.AttachmentSupport = (doc.getObject("XY_Plane017"), [""])
sketch17.MapMode = "FlatFace"
sketch17.addGeometry(Part.LineSegment(Vector(16.5, 23.5, 0), Vector(16.5, 21.5, 0)), False)
sketch17.addGeometry(Part.LineSegment(Vector(16.5, 21.5, 0), Vector(23.5, 21.5, 0)), False)
sketch17.addGeometry(Part.LineSegment(Vector(23.5, 21.5, 0), Vector(23.5, 23.5, 0)), False)
sketch17.addGeometry(Part.LineSegment(Vector(23.5, 23.5, 0), Vector(16.5, 23.5, 0)), False)
sketch17.addConstraint(Sketcher.Constraint("Coincident", 0, 2, 1, 1))
sketch17.addConstraint(Sketcher.Constraint("Coincident", 1, 2, 2, 1))
sketch17.addConstraint(Sketcher.Constraint("Coincident", 2, 2, 3, 1))
sketch17.addConstraint(Sketcher.Constraint("Coincident", 3, 2, 0, 1))
sketch17.addConstraint(Sketcher.Constraint("Vertical", 0))
sketch17.addConstraint(Sketcher.Constraint("Horizontal", 1))
sketch17.addConstraint(Sketcher.Constraint("Vertical", 2))
sketch17.addConstraint(Sketcher.Constraint("Horizontal", 3))
sketch17.addConstraint(Sketcher.Constraint("DistanceX", 1, 1, 1, 2, 7.0))
sketch17.addConstraint(Sketcher.Constraint("DistanceY", 0, 2, 0, 1, 2.0))
sketch17.addConstraint(Sketcher.Constraint("DistanceX", -1, 1, 0, 2, 16.5))
sketch17.addConstraint(Sketcher.Constraint("DistanceY", -1, 1, 0, 2, 21.5))
pad17 = body18.newObject("PartDesign::Pad", "Pad016")
pad17.Profile = sketch17
pad17.Length = 10
doc.recompute()

boolean9 = body18.newObject("PartDesign::Boolean", "Boolean008")
boolean9.Type = "Fuse"
boolean9.addObjects([body17])
doc.recompute()

chamfer8 = body18.newObject("PartDesign::Chamfer", "Chamfer007")
chamfer8.Base = (boolean9, edges_at(boolean9, [(23.5, 23.5, 5)]))
chamfer8.Size = 1
body19 = doc.addObject("PartDesign::Body", "Body018")

# Sketch on XY plane
sketch18 = body19.newObject("Sketcher::SketchObject", "Sketch017")
sketch18.AttachmentSupport = (doc.getObject("XY_Plane018"), [""])
sketch18.MapMode = "FlatFace"
sketch18.addGeometry(Part.Circle(Vector(13, 0, 0), Vector(0, 0, 1), 1.7), False)
sketch18.addConstraint(Sketcher.Constraint("PointOnObject", 0, 3, -1))
sketch18.addConstraint(Sketcher.Constraint("Diameter", 0, 3.4))
sketch18.addConstraint(Sketcher.Constraint("DistanceX", -1, 1, 0, 3, 13.0))
pad18 = body19.newObject("PartDesign::Pad", "Pad017")
pad18.Profile = sketch18
pad18.Length = 10
body20 = doc.addObject("PartDesign::Body", "Body019")
body20.AllowCompound = True

# Sketch on XY plane
sketch19 = body20.newObject("Sketcher::SketchObject", "Sketch018")
sketch19.AttachmentSupport = (doc.getObject("XY_Plane019"), [""])
sketch19.MapMode = "FlatFace"
sketch19.addGeometry(Part.Circle(Vector(-13.5, 0, 0), Vector(0, 0, 1), 1.7), False)
sketch19.addConstraint(Sketcher.Constraint("PointOnObject", 0, 3, -1))
sketch19.addConstraint(Sketcher.Constraint("Diameter", 0, 3.4))
sketch19.addConstraint(Sketcher.Constraint("DistanceX", 0, 3, -1, 1, 13.5))
pad19 = body20.newObject("PartDesign::Pad", "Pad018")
pad19.Profile = sketch19
pad19.Length = 10
doc.recompute()

boolean10 = body20.newObject("PartDesign::Boolean", "Boolean009")
boolean10.Type = "Fuse"
boolean10.addObjects([body19])
body21 = doc.addObject("PartDesign::Body", "Body020")

# Sketch on XY plane
sketch20 = body21.newObject("Sketcher::SketchObject", "Sketch019")
sketch20.AttachmentSupport = (doc.getObject("XY_Plane020"), [""])
sketch20.MapMode = "FlatFace"
sketch20.addGeometry(Part.Circle(Vector(-13.5, 0, 0), Vector(0, 0, 1), 3), False)
sketch20.addConstraint(Sketcher.Constraint("PointOnObject", 0, 3, -1))
sketch20.addConstraint(Sketcher.Constraint("Diameter", 0, 6.0))
sketch20.addConstraint(Sketcher.Constraint("DistanceX", 0, 3, -1, 1, 13.5))
pad20 = body21.newObject("PartDesign::Pad", "Pad019")
pad20.Profile = sketch20
pad20.Length = 10
body22 = doc.addObject("PartDesign::Body", "Body021")
body22.AllowCompound = True

# Sketch on XY plane
sketch21 = body22.newObject("Sketcher::SketchObject", "Sketch020")
sketch21.AttachmentSupport = (doc.getObject("XY_Plane021"), [""])
sketch21.MapMode = "FlatFace"
sketch21.addGeometry(Part.Circle(Vector(13, 0, 0), Vector(0, 0, 1), 3), False)
sketch21.addConstraint(Sketcher.Constraint("PointOnObject", 0, 3, -1))
sketch21.addConstraint(Sketcher.Constraint("Diameter", 0, 6.0))
sketch21.addConstraint(Sketcher.Constraint("DistanceX", -1, 1, 0, 3, 13.0))
pad21 = body22.newObject("PartDesign::Pad", "Pad020")
pad21.Profile = sketch21
pad21.Length = 10
doc.recompute()

boolean11 = body22.newObject("PartDesign::Boolean", "Boolean010")
boolean11.Type = "Fuse"
boolean11.addObjects([body21])
body23 = doc.addObject("PartDesign::Body", "Body022")
body23.AllowCompound = True
doc.recompute()

body22.Placement = App.Placement(Vector(0, 0, 10), App.Rotation(Vector(0, 0, 1), 0))
boolean12 = body23.newObject("PartDesign::Boolean", "Boolean011")
boolean12.Type = "Fuse"
boolean12.addObjects([body22])
doc.recompute()

boolean13 = body23.newObject("PartDesign::Boolean", "Boolean012")
boolean13.Type = "Fuse"
boolean13.addObjects([body20])
body24 = doc.addObject("PartDesign::Body", "Body023")
body24.AllowCompound = True
doc.recompute()

body23.Placement = App.Placement(Vector(0, 0, -12), App.Rotation(Vector(0, 0, 1), 0))
boolean14 = body24.newObject("PartDesign::Boolean", "Boolean013")
boolean14.Type = "Fuse"
boolean14.addObjects([body23])
body25 = doc.addObject("PartDesign::Body", "Body024")

# Sketch on XY plane
sketch22 = body25.newObject("Sketcher::SketchObject", "Sketch021")
sketch22.AttachmentSupport = (doc.getObject("XY_Plane024"), [""])
sketch22.MapMode = "FlatFace"
sketch22.AttachmentOffset = App.Placement(Vector(0, 0, -5), App.Rotation())
sketch22.addGeometry(Part.LineSegment(Vector(-24, 24, 0), Vector(-24, -24, 0)), False)
sketch22.addGeometry(Part.LineSegment(Vector(-24, -24, 0), Vector(24, -24, 0)), False)
sketch22.addGeometry(Part.LineSegment(Vector(24, -24, 0), Vector(24, 24, 0)), False)
sketch22.addGeometry(Part.LineSegment(Vector(24, 24, 0), Vector(-24, 24, 0)), False)
sketch22.addConstraint(Sketcher.Constraint("Coincident", 0, 2, 1, 1))
sketch22.addConstraint(Sketcher.Constraint("Coincident", 1, 2, 2, 1))
sketch22.addConstraint(Sketcher.Constraint("Coincident", 2, 2, 3, 1))
sketch22.addConstraint(Sketcher.Constraint("Coincident", 3, 2, 0, 1))
sketch22.addConstraint(Sketcher.Constraint("Vertical", 0))
sketch22.addConstraint(Sketcher.Constraint("Horizontal", 1))
sketch22.addConstraint(Sketcher.Constraint("Vertical", 2))
sketch22.addConstraint(Sketcher.Constraint("Horizontal", 3))
sketch22.addConstraint(Sketcher.Constraint("Symmetric", 0, 2, 2, 2, -1, 1))
sketch22.addConstraint(Sketcher.Constraint("Equal", 3, 0))
sketch22.addConstraint(Sketcher.Constraint("DistanceX", 1, 1, 1, 2, 47.0))
pad22 = body25.newObject("PartDesign::Pad", "Pad021")
pad22.Profile = sketch22
pad22.Length = 5
doc.recompute()

chamfer9 = body25.newObject("PartDesign::Chamfer", "Chamfer008")
chamfer9.Base = (pad22, edges_at(pad22, [
    (-23.5, -23.5, -2.5),
    (-23.5, 23.5, -2.5),
    (23.5, -23.5, -2.5),
    (23.5, 23.5, -2.5),
]))
chamfer9.Size = 1
doc.recompute()

boolean15 = body25.newObject("PartDesign::Boolean", "Boolean014")
boolean15.Type = "Cut"
boolean15.addObjects([body24])
body26 = doc.addObject("PartDesign::Body", "Body025")

# Sketch on XY plane
sketch23 = body26.newObject("Sketcher::SketchObject", "Sketch022")
sketch23.AttachmentSupport = (doc.getObject("XY_Plane025"), [""])
sketch23.MapMode = "FlatFace"
sketch23.AttachmentOffset = App.Placement(Vector(0, 0, 19.5), App.Rotation())
sketch23.addGeometry(Part.LineSegment(Vector(-23.5, 10, 0), Vector(-23.5, -10, 0)), False)
sketch23.addGeometry(Part.LineSegment(Vector(-23.5, -10, 0), Vector(-20.5, -10, 0)), False)
sketch23.addGeometry(Part.LineSegment(Vector(-20.5, -10, 0), Vector(-20.5, 10, 0)), False)
sketch23.addGeometry(Part.LineSegment(Vector(-20.5, 10, 0), Vector(-23.5, 10, 0)), False)
sketch23.addConstraint(Sketcher.Constraint("Coincident", 0, 2, 1, 1))
sketch23.addConstraint(Sketcher.Constraint("Coincident", 1, 2, 2, 1))
sketch23.addConstraint(Sketcher.Constraint("Coincident", 2, 2, 3, 1))
sketch23.addConstraint(Sketcher.Constraint("Coincident", 3, 2, 0, 1))
sketch23.addConstraint(Sketcher.Constraint("Vertical", 0))
sketch23.addConstraint(Sketcher.Constraint("Horizontal", 1))
sketch23.addConstraint(Sketcher.Constraint("Vertical", 2))
sketch23.addConstraint(Sketcher.Constraint("Horizontal", 3))
sketch23.addConstraint(Sketcher.Constraint("DistanceX", 1, 1, 1, 2, 3.0))
sketch23.addConstraint(Sketcher.Constraint("DistanceY", 0, 2, 0, 1, 20.0))
sketch23.addConstraint(Sketcher.Constraint("DistanceY", 0, 2, -1, 1, 10.0))
sketch23.addConstraint(Sketcher.Constraint("DistanceX", 0, 2, -1, 1, 23.5))
pad23 = body26.newObject("PartDesign::Pad", "Pad022")
pad23.Profile = sketch23
pad23.Length = 2
doc.recompute()

chamfer10 = body26.newObject("PartDesign::Chamfer", "Chamfer009")
chamfer10.Base = (pad23, edges_at(pad23, [(-20.5, 0, 21.5)]))
chamfer10.Size = 1
doc.recompute()

chamfer11 = body26.newObject("PartDesign::Chamfer", "Chamfer010")
chamfer11.Base = (chamfer10, edges_at(chamfer10, [(-20.5, 0, 19.5)]))
chamfer11.ChamferType = "Two distances"
chamfer11.Size = 0.5
chamfer11.Size2 = 1
doc.recompute()

chamfer12 = body26.newObject("PartDesign::Chamfer", "Chamfer011")
chamfer12.Base = (chamfer11, edges_at(chamfer11, [(-23.5, 0, 21.5)]))
chamfer12.Size = 0.5
body27 = doc.addObject("PartDesign::Body", "Body026")
body27.AllowCompound = True

# Sketch on XY plane
sketch24 = body27.newObject("Sketcher::SketchObject", "Sketch023")
sketch24.AttachmentSupport = (doc.getObject("XY_Plane026"), [""])
sketch24.MapMode = "FlatFace"
sketch24.addGeometry(Part.LineSegment(Vector(-23.5, 10, 0), Vector(-23.5, -10, 0)), False)
sketch24.addGeometry(Part.LineSegment(Vector(-23.5, -10, 0), Vector(-21.5, -10, 0)), False)
sketch24.addGeometry(Part.LineSegment(Vector(-21.5, -10, 0), Vector(-21.5, 10, 0)), False)
sketch24.addGeometry(Part.LineSegment(Vector(-21.5, 10, 0), Vector(-23.5, 10, 0)), False)
sketch24.addConstraint(Sketcher.Constraint("Coincident", 0, 2, 1, 1))
sketch24.addConstraint(Sketcher.Constraint("Coincident", 1, 2, 2, 1))
sketch24.addConstraint(Sketcher.Constraint("Coincident", 2, 2, 3, 1))
sketch24.addConstraint(Sketcher.Constraint("Coincident", 3, 2, 0, 1))
sketch24.addConstraint(Sketcher.Constraint("Vertical", 0))
sketch24.addConstraint(Sketcher.Constraint("Horizontal", 1))
sketch24.addConstraint(Sketcher.Constraint("Vertical", 2))
sketch24.addConstraint(Sketcher.Constraint("Horizontal", 3))
sketch24.addConstraint(Sketcher.Constraint("DistanceX", 1, 1, 1, 2, 2.0))
sketch24.addConstraint(Sketcher.Constraint("DistanceY", 0, 2, 0, 1, 20.0))
sketch24.addConstraint(Sketcher.Constraint("DistanceY", 0, 2, -1, 1, 10.0))
sketch24.addConstraint(Sketcher.Constraint("DistanceX", 0, 2, -1, 1, 23.5))
pad24 = body27.newObject("PartDesign::Pad", "Pad023")
pad24.Profile = sketch24
pad24.Length = 20
doc.recompute()

boolean16 = body27.newObject("PartDesign::Boolean", "Boolean015")
boolean16.Type = "Fuse"
boolean16.addObjects([body26])
doc.recompute()

boolean17 = body27.newObject("PartDesign::Boolean", "Boolean016")
boolean17.Type = "Fuse"
boolean17.addObjects([body10])
doc.recompute()

boolean18 = body27.newObject("PartDesign::Boolean", "Boolean017")
boolean18.Type = "Fuse"
boolean18.addObjects([body12])
doc.recompute()

boolean19 = body27.newObject("PartDesign::Boolean", "Boolean018")
boolean19.Type = "Fuse"
boolean19.addObjects([body14])
doc.recompute()

boolean20 = body27.newObject("PartDesign::Boolean", "Boolean019")
boolean20.Type = "Fuse"
boolean20.addObjects([body16])
doc.recompute()

boolean21 = body27.newObject("PartDesign::Boolean", "Boolean020")
boolean21.Type = "Fuse"
boolean21.addObjects([body18])
doc.recompute()

boolean22 = body27.newObject("PartDesign::Boolean", "Boolean021")
boolean22.Type = "Fuse"
boolean22.addObjects([body25])
doc.recompute()

chamfer13 = body27.newObject("PartDesign::Chamfer", "Chamfer012")
chamfer13.Base = (boolean22, edges_at(boolean22, [
    (-22.5, 16.5, 10),
    (-16.5, 22.5, 10),
    (-22.5, -16.5, 10),
    (16.5, 22.5, 10),
    (22.5, 16.5, 10),
    (22.5, -16.5, 10),
    (16.5, -22.5, 10),
    (-16.5, -22.5, 10),
]))
chamfer13.Size = 1
doc.recompute()

boolean23 = body27.newObject("PartDesign::Boolean", "Boolean022")
boolean23.Type = "Cut"
boolean23.addObjects([body8])
doc.recompute()

boolean24 = body27.newObject("PartDesign::Boolean", "Boolean023")
boolean24.Type = "Fuse"
boolean24.addObjects([body6])
doc.recompute()

boolean25 = body27.newObject("PartDesign::Boolean", "Boolean024")
boolean25.Type = "Cut"
boolean25.addObjects([body2])
doc.recompute()

chamfer14 = body27.newObject("PartDesign::Chamfer", "Chamfer013")
chamfer14.Base = (boolean25, edges_at(boolean25, [(-23.5, -4.5, -3), (23.5, -4.5, -3)]))
chamfer14.Size = 1
doc.recompute()

boolean26 = body27.newObject("PartDesign::Boolean", "Boolean025")
boolean26.Type = "Cut"
boolean26.addObjects([body])
doc.recompute()

chamfer15 = body27.newObject("PartDesign::Chamfer", "Chamfer014")
chamfer15.Base = (boolean26, edges_at(boolean26, [(-23.5, -4.5, 18), (23.5, -4.5, 18)]))
chamfer15.Size = 1

doc.recompute()
